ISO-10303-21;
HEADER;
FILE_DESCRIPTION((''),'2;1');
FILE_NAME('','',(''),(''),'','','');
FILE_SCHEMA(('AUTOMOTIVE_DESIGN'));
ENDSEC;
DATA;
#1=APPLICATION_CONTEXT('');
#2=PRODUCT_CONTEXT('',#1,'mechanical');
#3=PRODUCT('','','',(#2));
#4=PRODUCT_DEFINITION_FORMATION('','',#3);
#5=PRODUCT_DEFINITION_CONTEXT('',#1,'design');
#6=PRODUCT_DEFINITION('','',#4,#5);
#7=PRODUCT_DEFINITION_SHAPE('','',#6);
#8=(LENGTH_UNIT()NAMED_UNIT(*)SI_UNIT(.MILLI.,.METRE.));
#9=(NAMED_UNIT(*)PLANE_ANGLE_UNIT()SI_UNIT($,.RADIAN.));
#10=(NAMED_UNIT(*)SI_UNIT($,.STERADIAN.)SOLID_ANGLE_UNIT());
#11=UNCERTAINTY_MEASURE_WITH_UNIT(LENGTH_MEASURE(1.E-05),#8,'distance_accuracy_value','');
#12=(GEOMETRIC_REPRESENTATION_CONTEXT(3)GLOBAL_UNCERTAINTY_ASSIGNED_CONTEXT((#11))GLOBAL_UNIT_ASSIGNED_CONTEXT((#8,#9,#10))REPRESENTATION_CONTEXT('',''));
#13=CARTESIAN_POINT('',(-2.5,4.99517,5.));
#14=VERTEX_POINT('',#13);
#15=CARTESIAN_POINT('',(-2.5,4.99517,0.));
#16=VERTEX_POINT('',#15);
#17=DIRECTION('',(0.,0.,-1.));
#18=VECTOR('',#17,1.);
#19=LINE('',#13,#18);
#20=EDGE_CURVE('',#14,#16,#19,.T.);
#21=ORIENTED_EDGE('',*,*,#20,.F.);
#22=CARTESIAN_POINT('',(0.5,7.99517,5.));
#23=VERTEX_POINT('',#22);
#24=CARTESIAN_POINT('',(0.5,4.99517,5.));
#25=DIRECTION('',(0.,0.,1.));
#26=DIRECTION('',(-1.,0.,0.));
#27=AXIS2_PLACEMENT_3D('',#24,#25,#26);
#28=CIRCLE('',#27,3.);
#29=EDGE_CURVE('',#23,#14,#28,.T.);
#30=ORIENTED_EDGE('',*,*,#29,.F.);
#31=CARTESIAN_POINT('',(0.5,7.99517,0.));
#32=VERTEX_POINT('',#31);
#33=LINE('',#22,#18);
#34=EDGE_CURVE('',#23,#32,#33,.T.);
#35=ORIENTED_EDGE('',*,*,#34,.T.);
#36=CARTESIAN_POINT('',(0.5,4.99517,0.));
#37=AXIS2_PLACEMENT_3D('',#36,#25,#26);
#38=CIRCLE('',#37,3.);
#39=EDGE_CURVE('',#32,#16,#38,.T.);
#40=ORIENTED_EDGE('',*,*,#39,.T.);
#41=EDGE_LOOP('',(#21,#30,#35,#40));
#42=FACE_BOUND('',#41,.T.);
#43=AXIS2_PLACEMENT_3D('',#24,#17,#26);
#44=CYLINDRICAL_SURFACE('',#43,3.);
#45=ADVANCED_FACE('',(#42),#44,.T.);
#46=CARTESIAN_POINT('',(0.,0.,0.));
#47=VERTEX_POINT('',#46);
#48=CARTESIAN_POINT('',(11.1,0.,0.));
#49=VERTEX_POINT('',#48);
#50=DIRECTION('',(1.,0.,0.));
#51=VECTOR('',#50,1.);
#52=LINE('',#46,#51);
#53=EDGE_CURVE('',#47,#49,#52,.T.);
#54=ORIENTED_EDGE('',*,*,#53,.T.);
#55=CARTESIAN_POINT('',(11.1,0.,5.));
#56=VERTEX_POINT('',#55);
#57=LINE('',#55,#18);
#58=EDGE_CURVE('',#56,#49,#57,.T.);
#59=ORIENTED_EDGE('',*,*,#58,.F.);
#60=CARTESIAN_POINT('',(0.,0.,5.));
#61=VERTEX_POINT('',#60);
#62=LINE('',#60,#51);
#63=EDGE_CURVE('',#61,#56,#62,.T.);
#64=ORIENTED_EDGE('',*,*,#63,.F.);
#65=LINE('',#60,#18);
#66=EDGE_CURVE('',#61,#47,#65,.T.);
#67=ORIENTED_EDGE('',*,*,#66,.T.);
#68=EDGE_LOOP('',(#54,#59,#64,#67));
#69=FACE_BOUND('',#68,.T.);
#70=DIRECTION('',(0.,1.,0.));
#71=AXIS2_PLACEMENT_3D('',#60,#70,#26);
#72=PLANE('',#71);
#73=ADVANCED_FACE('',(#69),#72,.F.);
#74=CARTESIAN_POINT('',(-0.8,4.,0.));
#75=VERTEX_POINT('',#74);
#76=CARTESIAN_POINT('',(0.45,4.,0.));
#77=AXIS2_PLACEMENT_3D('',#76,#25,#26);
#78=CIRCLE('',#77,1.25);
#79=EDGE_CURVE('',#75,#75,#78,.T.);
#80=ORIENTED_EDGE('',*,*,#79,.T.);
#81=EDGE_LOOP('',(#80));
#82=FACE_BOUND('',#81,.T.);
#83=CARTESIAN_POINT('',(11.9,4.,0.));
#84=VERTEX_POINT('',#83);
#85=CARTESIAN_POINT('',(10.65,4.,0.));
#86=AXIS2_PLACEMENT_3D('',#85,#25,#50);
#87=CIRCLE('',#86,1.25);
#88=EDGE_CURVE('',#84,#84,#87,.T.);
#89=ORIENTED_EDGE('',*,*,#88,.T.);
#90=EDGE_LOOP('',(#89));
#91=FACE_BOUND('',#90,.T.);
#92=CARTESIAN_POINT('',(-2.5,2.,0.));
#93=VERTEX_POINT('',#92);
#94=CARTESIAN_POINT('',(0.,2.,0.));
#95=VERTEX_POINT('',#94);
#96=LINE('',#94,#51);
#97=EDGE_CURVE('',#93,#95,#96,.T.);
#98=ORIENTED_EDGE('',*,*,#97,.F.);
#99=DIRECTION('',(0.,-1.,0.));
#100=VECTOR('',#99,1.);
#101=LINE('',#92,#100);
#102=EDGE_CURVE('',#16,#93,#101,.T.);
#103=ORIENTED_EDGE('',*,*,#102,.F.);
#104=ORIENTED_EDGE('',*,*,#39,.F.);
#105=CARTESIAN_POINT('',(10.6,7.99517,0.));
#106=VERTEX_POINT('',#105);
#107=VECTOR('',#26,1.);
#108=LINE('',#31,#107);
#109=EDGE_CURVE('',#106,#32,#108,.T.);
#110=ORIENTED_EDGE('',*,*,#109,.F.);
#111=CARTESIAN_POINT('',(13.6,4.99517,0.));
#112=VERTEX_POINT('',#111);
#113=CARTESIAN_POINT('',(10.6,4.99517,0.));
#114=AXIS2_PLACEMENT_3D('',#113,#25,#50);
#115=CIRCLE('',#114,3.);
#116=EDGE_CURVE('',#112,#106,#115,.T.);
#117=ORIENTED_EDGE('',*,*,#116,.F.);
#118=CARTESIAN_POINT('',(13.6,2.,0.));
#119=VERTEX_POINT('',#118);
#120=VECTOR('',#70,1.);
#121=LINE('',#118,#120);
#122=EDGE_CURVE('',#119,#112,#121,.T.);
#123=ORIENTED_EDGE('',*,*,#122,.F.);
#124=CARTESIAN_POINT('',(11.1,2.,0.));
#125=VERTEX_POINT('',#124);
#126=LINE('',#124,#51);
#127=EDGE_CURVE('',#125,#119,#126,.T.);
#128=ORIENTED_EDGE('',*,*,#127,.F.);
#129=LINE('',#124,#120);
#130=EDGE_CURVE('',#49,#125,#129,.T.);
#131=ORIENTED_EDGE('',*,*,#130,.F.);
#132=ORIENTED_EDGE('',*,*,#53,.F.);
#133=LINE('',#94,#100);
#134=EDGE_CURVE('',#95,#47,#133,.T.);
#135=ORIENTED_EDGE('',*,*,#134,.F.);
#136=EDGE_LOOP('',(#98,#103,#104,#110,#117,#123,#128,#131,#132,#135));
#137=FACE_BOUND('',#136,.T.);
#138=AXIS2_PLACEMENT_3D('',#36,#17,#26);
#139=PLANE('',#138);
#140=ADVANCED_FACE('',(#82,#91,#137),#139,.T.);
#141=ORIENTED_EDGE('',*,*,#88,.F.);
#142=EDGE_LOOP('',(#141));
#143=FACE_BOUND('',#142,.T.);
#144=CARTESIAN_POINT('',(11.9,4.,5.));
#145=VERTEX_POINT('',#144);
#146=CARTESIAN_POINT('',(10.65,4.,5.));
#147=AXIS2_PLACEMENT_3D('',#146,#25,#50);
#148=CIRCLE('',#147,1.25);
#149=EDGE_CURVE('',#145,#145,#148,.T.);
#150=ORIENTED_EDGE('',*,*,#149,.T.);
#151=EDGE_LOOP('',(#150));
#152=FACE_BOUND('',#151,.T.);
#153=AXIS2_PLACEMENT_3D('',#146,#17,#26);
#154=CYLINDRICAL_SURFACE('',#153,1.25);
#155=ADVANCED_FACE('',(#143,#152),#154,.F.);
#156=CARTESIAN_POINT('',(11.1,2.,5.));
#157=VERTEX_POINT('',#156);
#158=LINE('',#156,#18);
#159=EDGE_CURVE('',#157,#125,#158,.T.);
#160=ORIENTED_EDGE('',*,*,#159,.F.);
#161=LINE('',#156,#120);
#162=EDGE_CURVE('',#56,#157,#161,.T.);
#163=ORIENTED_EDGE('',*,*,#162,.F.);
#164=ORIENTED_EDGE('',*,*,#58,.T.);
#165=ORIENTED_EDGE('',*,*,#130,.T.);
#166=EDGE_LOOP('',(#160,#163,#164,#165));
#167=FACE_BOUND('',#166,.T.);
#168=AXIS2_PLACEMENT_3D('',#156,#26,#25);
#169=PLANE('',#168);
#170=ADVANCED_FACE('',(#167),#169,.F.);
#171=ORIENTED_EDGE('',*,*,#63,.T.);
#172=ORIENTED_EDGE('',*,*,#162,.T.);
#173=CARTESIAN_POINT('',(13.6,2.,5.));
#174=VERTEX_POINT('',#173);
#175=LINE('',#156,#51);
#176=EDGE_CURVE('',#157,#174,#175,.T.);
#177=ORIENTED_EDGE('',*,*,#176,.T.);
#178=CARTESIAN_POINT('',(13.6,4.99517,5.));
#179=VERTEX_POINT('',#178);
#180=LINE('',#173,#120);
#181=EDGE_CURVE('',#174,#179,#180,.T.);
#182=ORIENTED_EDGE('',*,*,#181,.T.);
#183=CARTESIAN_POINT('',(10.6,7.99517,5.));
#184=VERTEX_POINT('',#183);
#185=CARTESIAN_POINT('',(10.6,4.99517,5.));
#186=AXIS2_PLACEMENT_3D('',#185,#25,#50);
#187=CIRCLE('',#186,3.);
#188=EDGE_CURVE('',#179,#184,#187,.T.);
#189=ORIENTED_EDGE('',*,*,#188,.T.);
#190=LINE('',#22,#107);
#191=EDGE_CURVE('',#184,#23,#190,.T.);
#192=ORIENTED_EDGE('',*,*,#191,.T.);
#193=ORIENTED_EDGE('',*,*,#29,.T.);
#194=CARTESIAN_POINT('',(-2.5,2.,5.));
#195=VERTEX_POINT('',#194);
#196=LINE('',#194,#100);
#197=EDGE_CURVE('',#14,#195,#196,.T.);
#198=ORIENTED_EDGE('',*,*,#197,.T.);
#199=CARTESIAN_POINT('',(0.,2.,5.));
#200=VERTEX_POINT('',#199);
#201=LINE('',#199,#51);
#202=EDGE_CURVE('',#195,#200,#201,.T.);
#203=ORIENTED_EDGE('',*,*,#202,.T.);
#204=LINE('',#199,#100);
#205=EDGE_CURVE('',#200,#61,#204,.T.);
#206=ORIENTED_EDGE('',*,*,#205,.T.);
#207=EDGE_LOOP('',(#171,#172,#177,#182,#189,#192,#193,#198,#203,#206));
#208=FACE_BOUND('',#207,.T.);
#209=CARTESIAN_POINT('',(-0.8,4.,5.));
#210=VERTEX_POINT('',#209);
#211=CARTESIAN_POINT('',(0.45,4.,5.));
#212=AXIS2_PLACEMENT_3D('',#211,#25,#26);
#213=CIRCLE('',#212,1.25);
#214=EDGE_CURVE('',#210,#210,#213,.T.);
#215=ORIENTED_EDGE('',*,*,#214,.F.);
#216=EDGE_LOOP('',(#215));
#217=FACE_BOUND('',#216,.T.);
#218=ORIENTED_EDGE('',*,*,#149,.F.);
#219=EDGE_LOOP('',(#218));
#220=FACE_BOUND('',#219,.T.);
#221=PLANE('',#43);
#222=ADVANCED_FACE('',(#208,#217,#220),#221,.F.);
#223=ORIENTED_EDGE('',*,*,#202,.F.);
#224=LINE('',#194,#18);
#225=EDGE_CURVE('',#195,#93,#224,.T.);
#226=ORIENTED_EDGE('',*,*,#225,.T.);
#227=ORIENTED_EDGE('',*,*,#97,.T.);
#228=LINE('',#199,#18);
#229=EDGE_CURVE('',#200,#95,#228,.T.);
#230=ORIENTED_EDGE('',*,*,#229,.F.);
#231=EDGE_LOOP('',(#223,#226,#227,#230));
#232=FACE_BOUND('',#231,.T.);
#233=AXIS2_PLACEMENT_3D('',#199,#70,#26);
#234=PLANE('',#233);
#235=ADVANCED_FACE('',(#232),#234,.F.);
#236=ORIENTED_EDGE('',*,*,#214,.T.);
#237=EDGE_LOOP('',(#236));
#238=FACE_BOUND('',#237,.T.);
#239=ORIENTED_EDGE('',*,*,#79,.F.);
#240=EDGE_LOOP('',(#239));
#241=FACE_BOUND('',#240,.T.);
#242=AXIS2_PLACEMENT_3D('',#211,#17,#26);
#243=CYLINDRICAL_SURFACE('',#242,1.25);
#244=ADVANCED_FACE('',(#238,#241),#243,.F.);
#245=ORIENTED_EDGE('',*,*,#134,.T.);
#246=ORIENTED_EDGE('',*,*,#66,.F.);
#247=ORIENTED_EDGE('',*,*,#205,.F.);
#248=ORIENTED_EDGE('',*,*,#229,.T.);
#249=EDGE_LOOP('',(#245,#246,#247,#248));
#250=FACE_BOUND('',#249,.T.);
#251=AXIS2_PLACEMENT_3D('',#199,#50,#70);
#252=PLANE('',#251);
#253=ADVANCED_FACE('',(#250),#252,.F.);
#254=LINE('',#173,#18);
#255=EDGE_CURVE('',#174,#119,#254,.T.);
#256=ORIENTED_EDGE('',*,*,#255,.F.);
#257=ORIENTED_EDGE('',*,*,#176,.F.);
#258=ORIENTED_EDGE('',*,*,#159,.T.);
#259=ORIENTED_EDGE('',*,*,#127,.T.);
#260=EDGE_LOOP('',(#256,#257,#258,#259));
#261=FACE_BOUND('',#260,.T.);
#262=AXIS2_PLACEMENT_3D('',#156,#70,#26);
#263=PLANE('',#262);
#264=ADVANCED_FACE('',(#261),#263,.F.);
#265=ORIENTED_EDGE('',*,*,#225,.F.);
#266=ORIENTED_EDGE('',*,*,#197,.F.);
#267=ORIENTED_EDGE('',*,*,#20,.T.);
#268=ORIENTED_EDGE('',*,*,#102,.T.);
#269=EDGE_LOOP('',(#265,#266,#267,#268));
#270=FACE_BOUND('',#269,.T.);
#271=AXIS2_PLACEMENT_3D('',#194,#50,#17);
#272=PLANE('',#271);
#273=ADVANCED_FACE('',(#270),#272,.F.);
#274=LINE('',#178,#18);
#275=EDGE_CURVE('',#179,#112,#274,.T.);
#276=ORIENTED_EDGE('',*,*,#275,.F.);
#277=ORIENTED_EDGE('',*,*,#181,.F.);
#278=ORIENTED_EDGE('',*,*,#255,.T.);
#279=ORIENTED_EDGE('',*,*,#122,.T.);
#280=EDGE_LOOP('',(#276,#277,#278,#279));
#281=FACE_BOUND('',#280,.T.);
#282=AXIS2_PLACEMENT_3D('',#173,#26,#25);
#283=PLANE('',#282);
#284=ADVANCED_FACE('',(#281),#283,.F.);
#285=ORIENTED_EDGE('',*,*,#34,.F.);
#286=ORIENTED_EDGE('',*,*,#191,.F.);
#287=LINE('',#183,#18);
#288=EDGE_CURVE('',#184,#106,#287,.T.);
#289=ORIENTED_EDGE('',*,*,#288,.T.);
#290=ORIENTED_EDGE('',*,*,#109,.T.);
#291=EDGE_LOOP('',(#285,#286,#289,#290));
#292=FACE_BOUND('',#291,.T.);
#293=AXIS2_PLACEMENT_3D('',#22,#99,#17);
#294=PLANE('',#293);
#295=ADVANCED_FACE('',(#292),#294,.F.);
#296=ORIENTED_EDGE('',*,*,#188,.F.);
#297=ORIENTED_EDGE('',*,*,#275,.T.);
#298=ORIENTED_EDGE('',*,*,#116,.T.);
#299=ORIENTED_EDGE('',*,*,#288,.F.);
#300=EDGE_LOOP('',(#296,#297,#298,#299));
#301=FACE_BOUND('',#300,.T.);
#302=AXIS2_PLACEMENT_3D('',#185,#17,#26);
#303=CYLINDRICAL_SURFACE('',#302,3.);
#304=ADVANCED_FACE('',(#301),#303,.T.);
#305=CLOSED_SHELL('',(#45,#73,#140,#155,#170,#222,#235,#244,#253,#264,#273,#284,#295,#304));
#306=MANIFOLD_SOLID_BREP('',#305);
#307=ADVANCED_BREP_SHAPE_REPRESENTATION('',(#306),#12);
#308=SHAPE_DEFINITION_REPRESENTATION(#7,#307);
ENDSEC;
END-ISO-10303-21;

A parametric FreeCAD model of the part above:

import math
import FreeCAD as App
import Part
import Sketcher
from FreeCAD import Vector
Q = App.Units.Quantity

doc = App.newDocument("Part")
body = doc.addObject("PartDesign::Body", "Body")

# Sketch on XY plane
sketch1 = body.newObject("Sketcher::SketchObject", "Sketch")
sketch1.AttachmentSupport = (doc.getObject("XY_Plane"), [""])
sketch1.MapMode = "FlatFace"
sketch1.addGeometry([
    Part.LineSegment(Vector(-2.5, 2, 0), Vector(0, 2, 0)),  # 0
    Part.LineSegment(Vector(0, 2, 0), Vector(0, 0, 0)),  # 1
    Part.LineSegment(Vector(0, 0, 0), Vector(11.1, 0, 0)),  # 2
    Part.LineSegment(Vector(11.1, 0, 0), Vector(11.1, 2, 0)),  # 3
    Part.LineSegment(Vector(11.1, 2, 0), Vector(13.6, 2, 0)),  # 4
    Part.LineSegment(Vector(13.6, 2, 0), Vector(13.6, 4.99517, 0)),  # 5
    Part.ArcOfCircle(Part.Circle(Vector(10.6, 4.99517, 0), Vector(0, 0, 1), 3), math.radians(0), math.radians(90)),  # 6
    Part.LineSegment(Vector(10.6, 7.99517, 0), Vector(0.5, 7.99517, 0)),  # 7
    Part.ArcOfCircle(Part.Circle(Vector(0.5, 4.99517, 0), Vector(0, 0, 1), 3), math.radians(90), math.radians(180)),  # 8
    Part.LineSegment(Vector(-2.5, 4.99517, 0), Vector(-2.5, 2, 0)),  # 9
    Part.Circle(Vector(10.65, 4, 0), Vector(0, 0, 1), 1.25),  # 10
    Part.Circle(Vector(0.45, 4, 0), Vector(0, 0, 1), 1.25),  # 11
], False)
sketch1.addConstraint([
    Sketcher.Constraint("Coincident", 0, 2, 1, 1),
    Sketcher.Constraint("Coincident", 1, 2, 2, 1),
    Sketcher.Constraint("Coincident", 2, 2, 3, 1),
    Sketcher.Constraint("Coincident", 3, 2, 4, 1),
    Sketcher.Constraint("Coincident", 4, 2, 5, 1),
    Sketcher.Constraint("Tangent", 5, 2, 6, 1),
    Sketcher.Constraint("Tangent", 6, 2, 7, 1),
    Sketcher.Constraint("Tangent", 7, 2, 8, 1),
    Sketcher.Constraint("Tangent", 8, 2, 9, 1),
    Sketcher.Constraint("Coincident", 9, 2, 0, 1),
    Sketcher.Constraint("Horizontal", 0),
    Sketcher.Constraint("Vertical", 1),
    Sketcher.Constraint("Horizontal", 2),
    Sketcher.Constraint("Vertical", 3),
    Sketcher.Constraint("Horizontal", 4),
    Sketcher.Constraint("Vertical", 5),
    Sketcher.Constraint("Horizontal", 7),
    Sketcher.Constraint("Vertical", 9),
    Sketcher.Constraint("Coincident", 1, 2, -1, 1),
    Sketcher.Constraint("Equal", 6, 8),
    Sketcher.Constraint("Equal", 10, 11),
    Sketcher.Constraint("Horizontal", 10, 3, 11, 3),
    Sketcher.Constraint("Horizontal", 0, 2, 3, 2),
    Sketcher.Constraint("Equal", 0, 4),
    Sketcher.Constraint("Radius", 6, Q("3 mm")),
    Sketcher.Constraint("Diameter", 10, Q("2.5 mm")),
    Sketcher.Constraint("DistanceY", 1, 2, 1, 1, Q("2 mm")),
    Sketcher.Constraint("DistanceX", 0, 1, 0, 2, Q("2.5 mm")),
    Sketcher.Constraint("DistanceX", 2, 1, 2, 2, Q("11.1 mm")),
    Sketcher.Constraint("DistanceY", -1, 1, 10, 3, Q("4 mm")),
    Sketcher.Constraint("DistanceX", 11, 3, 10, 3, Q("10.2 mm")),
    Sketcher.Constraint("DistanceX", -1, 1, 10, 3, Q("10.65 mm")),
    Sketcher.Constraint("DistanceY", 5, 1, 5, 2, Q("2.99517 mm")),
])
pad1 = body.newObject("PartDesign::Pad", "Pad")
pad1.Profile = sketch1
pad1.Length = 5

doc.recompute()
